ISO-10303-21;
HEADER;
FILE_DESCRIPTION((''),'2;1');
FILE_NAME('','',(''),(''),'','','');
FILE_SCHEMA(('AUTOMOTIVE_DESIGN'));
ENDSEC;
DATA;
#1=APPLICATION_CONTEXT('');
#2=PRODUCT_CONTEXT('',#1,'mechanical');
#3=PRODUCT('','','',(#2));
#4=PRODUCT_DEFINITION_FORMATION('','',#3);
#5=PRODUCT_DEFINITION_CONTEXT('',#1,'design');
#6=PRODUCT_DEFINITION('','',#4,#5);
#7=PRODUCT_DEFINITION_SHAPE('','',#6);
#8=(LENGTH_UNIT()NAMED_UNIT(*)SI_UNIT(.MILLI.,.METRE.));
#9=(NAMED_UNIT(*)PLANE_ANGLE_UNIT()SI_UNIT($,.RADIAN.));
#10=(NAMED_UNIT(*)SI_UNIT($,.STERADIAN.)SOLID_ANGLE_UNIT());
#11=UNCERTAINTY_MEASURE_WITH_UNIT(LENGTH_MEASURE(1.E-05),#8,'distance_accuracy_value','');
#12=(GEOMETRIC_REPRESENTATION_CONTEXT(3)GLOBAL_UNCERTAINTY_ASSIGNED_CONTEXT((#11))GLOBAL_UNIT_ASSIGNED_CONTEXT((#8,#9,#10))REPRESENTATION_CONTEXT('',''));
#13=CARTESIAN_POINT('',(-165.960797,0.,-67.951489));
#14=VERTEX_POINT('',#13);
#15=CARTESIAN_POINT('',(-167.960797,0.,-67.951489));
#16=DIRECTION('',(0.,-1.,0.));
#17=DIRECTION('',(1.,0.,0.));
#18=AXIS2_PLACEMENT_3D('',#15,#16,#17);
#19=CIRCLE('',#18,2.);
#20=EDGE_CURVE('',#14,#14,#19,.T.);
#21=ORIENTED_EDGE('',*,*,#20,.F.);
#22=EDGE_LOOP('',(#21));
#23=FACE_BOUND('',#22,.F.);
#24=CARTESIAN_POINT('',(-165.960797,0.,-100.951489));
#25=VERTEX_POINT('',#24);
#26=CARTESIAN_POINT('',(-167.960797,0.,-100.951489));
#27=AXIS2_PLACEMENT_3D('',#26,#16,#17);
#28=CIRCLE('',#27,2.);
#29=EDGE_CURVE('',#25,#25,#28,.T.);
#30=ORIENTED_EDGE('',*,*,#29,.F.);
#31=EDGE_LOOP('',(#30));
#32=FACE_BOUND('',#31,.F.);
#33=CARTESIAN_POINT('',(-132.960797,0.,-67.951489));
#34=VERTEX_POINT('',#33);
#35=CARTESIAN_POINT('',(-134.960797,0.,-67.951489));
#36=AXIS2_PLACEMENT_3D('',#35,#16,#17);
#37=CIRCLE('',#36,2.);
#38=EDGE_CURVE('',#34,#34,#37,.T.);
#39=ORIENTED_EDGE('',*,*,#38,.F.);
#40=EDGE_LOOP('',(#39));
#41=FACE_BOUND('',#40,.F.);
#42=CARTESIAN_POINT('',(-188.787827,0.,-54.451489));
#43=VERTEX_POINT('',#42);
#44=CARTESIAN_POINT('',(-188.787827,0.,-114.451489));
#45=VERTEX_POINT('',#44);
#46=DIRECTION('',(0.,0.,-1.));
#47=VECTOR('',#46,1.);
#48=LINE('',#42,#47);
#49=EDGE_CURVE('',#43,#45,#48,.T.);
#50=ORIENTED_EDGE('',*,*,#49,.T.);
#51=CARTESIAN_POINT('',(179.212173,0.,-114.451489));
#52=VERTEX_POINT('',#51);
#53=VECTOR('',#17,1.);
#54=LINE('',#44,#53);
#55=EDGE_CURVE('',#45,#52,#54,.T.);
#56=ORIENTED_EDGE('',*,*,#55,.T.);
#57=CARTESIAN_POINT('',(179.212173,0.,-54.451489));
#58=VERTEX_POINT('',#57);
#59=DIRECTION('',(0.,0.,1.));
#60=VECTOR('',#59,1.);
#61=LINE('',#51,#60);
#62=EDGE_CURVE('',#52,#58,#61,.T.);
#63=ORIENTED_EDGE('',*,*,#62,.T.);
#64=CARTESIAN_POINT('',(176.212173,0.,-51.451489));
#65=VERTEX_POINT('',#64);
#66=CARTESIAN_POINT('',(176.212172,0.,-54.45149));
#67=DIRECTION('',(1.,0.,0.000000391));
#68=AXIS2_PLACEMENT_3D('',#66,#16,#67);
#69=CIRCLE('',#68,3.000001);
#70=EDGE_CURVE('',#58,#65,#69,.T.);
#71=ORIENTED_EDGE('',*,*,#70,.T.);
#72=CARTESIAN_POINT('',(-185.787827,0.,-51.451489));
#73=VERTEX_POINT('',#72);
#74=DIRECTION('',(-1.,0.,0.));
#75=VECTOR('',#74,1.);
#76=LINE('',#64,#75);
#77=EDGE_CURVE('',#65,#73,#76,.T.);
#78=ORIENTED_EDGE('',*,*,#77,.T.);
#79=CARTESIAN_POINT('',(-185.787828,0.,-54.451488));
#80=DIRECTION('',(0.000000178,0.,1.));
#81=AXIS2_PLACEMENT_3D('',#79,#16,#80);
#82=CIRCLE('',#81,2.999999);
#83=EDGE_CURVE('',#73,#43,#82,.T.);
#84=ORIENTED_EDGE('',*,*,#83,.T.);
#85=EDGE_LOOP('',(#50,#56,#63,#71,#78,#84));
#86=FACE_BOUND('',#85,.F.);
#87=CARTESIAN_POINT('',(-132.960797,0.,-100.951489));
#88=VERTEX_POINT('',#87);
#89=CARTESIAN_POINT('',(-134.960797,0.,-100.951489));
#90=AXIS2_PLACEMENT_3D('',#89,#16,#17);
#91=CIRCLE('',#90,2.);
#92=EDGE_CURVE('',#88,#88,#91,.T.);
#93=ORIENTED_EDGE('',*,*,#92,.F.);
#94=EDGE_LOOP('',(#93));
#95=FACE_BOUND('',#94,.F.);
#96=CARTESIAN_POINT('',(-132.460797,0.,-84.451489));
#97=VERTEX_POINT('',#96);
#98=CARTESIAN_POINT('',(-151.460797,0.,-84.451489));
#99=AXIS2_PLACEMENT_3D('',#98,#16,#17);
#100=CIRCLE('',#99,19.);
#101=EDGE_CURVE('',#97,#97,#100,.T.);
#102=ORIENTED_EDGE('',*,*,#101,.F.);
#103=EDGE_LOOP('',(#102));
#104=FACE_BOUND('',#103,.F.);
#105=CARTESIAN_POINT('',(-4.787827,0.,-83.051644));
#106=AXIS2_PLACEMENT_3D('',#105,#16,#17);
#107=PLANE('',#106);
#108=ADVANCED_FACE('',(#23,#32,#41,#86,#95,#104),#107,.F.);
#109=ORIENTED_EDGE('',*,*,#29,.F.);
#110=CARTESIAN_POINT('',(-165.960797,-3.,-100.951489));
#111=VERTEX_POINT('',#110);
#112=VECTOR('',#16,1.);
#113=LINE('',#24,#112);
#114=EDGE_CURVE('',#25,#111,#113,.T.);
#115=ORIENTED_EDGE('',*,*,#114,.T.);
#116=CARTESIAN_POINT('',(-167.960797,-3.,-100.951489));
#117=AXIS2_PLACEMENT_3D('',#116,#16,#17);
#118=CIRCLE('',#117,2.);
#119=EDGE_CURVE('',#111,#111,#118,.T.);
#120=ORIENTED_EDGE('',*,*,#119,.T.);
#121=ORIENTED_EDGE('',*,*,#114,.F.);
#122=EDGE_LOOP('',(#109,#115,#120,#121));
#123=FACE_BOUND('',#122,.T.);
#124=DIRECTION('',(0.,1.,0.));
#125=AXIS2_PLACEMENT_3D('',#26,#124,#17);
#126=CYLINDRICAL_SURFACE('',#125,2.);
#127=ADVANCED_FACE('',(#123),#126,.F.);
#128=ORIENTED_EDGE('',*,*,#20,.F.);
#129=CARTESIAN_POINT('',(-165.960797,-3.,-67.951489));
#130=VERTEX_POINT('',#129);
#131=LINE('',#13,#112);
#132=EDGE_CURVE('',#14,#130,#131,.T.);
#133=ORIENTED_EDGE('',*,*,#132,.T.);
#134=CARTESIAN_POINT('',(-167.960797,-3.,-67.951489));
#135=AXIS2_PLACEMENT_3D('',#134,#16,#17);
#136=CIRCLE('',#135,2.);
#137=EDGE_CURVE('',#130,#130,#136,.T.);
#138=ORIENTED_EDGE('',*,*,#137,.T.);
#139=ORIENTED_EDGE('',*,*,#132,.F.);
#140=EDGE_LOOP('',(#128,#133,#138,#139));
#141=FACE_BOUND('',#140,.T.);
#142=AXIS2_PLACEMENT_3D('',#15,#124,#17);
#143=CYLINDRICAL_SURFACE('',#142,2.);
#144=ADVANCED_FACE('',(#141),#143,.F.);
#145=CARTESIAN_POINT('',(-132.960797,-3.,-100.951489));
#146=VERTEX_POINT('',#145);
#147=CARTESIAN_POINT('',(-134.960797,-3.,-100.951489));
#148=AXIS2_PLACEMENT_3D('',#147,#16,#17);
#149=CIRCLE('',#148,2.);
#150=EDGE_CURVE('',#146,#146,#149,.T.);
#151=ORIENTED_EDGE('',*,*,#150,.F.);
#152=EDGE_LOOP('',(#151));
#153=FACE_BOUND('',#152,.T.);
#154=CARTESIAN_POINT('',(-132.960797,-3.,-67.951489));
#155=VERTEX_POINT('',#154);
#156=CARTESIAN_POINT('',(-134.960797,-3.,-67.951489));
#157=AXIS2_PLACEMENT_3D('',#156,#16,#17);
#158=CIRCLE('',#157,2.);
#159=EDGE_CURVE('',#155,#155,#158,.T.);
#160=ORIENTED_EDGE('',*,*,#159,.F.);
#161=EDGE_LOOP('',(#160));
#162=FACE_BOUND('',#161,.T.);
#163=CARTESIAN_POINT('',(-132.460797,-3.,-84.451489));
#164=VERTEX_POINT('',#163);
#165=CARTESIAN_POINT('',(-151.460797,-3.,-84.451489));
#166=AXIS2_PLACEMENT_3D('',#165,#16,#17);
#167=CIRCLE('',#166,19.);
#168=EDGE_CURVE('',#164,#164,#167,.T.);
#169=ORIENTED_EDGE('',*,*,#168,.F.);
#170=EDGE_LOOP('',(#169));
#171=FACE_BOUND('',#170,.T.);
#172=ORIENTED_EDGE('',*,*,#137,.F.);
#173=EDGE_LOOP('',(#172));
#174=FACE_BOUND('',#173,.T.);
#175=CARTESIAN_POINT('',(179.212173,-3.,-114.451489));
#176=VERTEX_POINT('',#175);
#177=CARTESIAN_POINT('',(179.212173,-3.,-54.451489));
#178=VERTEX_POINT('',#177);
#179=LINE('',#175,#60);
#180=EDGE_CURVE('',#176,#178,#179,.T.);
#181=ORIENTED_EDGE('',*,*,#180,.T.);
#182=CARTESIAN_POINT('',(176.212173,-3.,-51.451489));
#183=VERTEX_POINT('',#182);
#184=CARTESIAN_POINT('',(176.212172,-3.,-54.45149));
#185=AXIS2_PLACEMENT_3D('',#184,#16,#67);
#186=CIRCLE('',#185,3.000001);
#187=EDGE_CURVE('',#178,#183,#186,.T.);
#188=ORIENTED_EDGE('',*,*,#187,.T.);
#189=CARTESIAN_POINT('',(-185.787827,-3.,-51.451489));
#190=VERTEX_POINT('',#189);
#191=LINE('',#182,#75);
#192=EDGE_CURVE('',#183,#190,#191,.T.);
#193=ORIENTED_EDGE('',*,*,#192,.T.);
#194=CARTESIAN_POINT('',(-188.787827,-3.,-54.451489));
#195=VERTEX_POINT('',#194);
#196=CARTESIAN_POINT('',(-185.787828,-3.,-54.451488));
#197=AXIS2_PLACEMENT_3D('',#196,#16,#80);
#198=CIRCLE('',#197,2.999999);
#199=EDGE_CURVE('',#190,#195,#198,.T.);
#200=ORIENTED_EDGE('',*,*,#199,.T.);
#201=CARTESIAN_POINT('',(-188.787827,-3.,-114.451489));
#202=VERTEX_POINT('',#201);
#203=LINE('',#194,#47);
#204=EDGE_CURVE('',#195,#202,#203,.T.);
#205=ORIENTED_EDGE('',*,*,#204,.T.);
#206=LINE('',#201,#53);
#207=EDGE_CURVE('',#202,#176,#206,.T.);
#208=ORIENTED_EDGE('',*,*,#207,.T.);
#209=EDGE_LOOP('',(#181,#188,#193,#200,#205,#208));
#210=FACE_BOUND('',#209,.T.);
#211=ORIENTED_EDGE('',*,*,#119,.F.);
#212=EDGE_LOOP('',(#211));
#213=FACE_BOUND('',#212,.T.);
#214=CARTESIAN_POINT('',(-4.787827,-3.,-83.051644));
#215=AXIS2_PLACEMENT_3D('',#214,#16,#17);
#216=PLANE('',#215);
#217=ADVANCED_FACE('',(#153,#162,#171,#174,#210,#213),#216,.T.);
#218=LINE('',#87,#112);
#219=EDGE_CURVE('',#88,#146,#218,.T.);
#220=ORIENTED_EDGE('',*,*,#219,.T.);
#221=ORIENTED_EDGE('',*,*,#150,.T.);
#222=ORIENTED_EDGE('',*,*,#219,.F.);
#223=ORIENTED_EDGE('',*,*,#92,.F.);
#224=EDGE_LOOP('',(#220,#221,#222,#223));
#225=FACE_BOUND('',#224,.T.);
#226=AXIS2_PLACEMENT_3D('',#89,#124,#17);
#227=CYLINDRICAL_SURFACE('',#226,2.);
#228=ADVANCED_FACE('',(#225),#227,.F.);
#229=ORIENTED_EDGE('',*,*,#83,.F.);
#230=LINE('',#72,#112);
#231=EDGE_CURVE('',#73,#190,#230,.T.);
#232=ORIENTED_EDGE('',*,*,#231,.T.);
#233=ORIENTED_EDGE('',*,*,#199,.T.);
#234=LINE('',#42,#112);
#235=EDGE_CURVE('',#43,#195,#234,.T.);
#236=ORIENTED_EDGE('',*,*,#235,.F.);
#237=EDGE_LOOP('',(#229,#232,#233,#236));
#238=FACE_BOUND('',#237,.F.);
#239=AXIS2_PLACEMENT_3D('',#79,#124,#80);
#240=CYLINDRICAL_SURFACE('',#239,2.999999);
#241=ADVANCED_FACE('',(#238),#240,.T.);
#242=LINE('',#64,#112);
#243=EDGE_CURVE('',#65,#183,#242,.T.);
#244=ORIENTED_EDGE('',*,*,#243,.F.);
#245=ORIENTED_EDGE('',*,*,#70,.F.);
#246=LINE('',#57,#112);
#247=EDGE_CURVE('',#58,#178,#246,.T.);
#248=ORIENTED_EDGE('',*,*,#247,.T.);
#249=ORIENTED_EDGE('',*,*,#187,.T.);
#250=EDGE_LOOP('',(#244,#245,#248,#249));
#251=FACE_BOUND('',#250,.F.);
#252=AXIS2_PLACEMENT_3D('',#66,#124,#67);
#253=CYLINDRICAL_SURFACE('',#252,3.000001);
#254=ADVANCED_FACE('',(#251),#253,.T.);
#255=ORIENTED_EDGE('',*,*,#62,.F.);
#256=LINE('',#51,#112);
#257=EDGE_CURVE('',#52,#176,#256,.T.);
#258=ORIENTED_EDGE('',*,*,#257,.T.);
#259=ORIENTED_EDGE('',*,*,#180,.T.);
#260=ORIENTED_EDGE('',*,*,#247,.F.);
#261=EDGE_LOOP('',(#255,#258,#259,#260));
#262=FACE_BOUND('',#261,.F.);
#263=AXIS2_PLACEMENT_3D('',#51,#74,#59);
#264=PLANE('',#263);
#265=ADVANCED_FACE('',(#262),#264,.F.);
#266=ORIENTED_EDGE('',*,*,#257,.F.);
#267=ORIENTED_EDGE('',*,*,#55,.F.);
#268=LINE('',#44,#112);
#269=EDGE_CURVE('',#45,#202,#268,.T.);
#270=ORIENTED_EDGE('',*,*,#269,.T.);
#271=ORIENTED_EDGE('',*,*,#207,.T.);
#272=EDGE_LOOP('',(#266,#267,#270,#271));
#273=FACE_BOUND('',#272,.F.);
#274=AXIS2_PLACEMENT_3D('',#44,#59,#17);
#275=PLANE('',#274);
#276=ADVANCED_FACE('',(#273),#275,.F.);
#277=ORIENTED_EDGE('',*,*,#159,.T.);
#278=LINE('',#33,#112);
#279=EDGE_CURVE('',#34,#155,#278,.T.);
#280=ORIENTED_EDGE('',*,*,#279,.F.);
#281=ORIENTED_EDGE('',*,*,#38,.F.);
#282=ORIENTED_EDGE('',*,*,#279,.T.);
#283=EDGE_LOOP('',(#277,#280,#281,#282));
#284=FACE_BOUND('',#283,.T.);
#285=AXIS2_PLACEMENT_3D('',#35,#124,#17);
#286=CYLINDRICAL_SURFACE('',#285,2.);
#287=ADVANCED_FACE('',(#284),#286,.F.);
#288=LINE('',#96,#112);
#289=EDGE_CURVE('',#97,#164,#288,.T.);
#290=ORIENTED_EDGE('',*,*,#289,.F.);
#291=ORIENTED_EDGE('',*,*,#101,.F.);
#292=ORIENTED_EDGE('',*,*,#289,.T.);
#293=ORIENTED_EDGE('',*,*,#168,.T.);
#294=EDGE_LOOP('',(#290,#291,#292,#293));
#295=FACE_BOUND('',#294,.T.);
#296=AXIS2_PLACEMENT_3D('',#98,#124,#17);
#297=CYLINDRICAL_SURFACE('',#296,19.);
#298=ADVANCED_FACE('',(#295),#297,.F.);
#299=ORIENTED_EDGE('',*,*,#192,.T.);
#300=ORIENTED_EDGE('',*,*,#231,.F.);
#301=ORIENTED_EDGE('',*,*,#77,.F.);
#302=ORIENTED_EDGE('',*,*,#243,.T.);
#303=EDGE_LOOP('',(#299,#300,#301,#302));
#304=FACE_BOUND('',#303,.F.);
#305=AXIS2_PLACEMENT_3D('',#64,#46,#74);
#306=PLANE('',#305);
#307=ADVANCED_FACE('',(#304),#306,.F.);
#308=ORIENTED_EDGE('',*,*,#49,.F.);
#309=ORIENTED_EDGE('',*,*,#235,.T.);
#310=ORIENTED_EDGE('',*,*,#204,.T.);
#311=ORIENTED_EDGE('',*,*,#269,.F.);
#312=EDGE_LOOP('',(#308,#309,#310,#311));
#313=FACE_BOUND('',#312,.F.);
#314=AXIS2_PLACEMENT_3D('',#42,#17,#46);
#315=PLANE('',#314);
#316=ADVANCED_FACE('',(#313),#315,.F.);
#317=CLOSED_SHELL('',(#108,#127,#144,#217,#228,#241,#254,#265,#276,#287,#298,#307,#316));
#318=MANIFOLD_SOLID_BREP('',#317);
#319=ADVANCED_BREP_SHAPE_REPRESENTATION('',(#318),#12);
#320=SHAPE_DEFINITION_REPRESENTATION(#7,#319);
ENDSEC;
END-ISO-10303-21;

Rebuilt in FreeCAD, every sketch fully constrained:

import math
import FreeCAD as App
import Part
import Sketcher

V = App.Vector

doc = App.newDocument("Part")
params = doc.addObject("Spreadsheet::Sheet", "Params")
for row, (alias, value) in enumerate([
    ("sketch1_diameter", "4 mm"),
    ("sketch1_diameter2", "38 mm"),
    ("sketch1_radius", "2.999999 mm"),
    ("sketch1_width", "362 mm"),
    ("sketch1_height", "60 mm"),
    ("pad1_length", "3 mm"),
], start=1):
    params.set(f"A{row}", alias)
    params.set(f"B{row}", "=" + value)
    params.setAlias(f"B{row}", alias)

body = doc.addObject("PartDesign::Body", "Body")

# Sketch on XZ plane
sketch1 = body.newObject("Sketcher::SketchObject", "Sketch")
sketch1.AttachmentSupport = (doc.getObject("XZ_Plane"), [""])
sketch1.MapMode = "FlatFace"
sketch1.addGeometry([
    Part.LineSegment(V(176.212173, -51.451489, 0), V(-185.787827, -51.451489, 0)),  # 0
    Part.ArcOfCircle(Part.Circle(V(-185.787828, -54.451488, 0), V(0, 0, 1), 2.999999), math.radians(89.99999), math.radians(180.00001)),  # 1
    Part.LineSegment(V(-188.787827, -54.451489, 0), V(-188.787827, -114.451489, 0)),  # 2
    Part.LineSegment(V(-188.787827, -114.451489, 0), V(179.212173, -114.451489, 0)),  # 3
    Part.LineSegment(V(179.212173, -114.451489, 0), V(179.212173, -54.451489, 0)),  # 4
    Part.ArcOfCircle(Part.Circle(V(176.212172, -54.45149, 0), V(0, 0, 1), 3.000001), math.radians(0.000022), math.radians(89.999978)),  # 5
    Part.Circle(V(-167.960797, -100.951489, 0), V(0, 0, 1), 2),  # 6
    Part.Circle(V(-134.960797, -100.951489, 0), V(0, 0, 1), 2),  # 7
    Part.Circle(V(-167.960797, -67.951489, 0), V(0, 0, 1), 2),  # 8
    Part.Circle(V(-151.460797, -84.451489, 0), V(0, 0, 1), 19),  # 9
    Part.Circle(V(-134.960797, -67.951489, 0), V(0, 0, 1), 2),  # 10
], False)
sketch1.addConstraint([
    Sketcher.Constraint("Tangent", 0, 2, 1, 1),
    Sketcher.Constraint("Tangent", 1, 2, 2, 1),
    Sketcher.Constraint("Coincident", 2, 2, 3, 1),
    Sketcher.Constraint("Coincident", 3, 2, 4, 1),
    Sketcher.Constraint("Tangent", 4, 2, 5, 1),
    Sketcher.Constraint("Tangent", 5, 2, 0, 1),
    Sketcher.Constraint("Horizontal", 0),
    Sketcher.Constraint("Vertical", 2),
    Sketcher.Constraint("Horizontal", 3),
    Sketcher.Constraint("Vertical", 4),
    Sketcher.Constraint("Equal", 1, 5),
    Sketcher.Constraint("Equal", 6, 7),
    Sketcher.Constraint("Equal", 7, 8),
    Sketcher.Constraint("Equal", 8, 10),
    Sketcher.Constraint("Horizontal", 6, 3, 7, 3),
    Sketcher.Constraint("Horizontal", 8, 3, 10, 3),
    Sketcher.Constraint("Vertical", 6, 3, 8, 3),
    Sketcher.Constraint("Vertical", 7, 3, 10, 3),
    Sketcher.Constraint("Diameter", 6, 4.0),
    Sketcher.Constraint("Diameter", 9, 38.0),
    Sketcher.Constraint("Radius", 1, 2.999999),
    Sketcher.Constraint("DistanceX", 0, 2, 0, 1, 362.0),
    Sketcher.Constraint("DistanceY", 2, 2, 2, 1, 60.0),
    Sketcher.Constraint("DistanceX", 6, 3, 7, 3, 33.0),
    Sketcher.Constraint("DistanceY", 6, 3, 8, 3, 33.0),
    Sketcher.Constraint("DistanceY", 9, 3, 1, 3, 30.000001),
    Sketcher.Constraint("DistanceY", 6, 3, 1, 3, 46.500001),
    Sketcher.Constraint("DistanceX", 6, 3, 9, 3, 16.5),
    Sketcher.Constraint("DistanceY", 1, 3, -1, 1, 54.451488),
    Sketcher.Constraint("DistanceX", -1, 1, 5, 3, 176.212172),
    Sketcher.Constraint("DistanceX", 1, 3, 6, 3, 17.827031),
])
sketch1.setExpression("Constraints[18]", "Params.sketch1_diameter")
sketch1.setExpression("Constraints[19]", "Params.sketch1_diameter2")
sketch1.setExpression("Constraints[20]", "Params.sketch1_radius")
sketch1.setExpression("Constraints[21]", "Params.sketch1_width")
sketch1.setExpression("Constraints[22]", "Params.sketch1_height")
pad1 = body.newObject("PartDesign::Pad", "Pad")
pad1.Profile = sketch1
pad1.setExpression("Length", "Params.pad1_length")

doc.recompute()
